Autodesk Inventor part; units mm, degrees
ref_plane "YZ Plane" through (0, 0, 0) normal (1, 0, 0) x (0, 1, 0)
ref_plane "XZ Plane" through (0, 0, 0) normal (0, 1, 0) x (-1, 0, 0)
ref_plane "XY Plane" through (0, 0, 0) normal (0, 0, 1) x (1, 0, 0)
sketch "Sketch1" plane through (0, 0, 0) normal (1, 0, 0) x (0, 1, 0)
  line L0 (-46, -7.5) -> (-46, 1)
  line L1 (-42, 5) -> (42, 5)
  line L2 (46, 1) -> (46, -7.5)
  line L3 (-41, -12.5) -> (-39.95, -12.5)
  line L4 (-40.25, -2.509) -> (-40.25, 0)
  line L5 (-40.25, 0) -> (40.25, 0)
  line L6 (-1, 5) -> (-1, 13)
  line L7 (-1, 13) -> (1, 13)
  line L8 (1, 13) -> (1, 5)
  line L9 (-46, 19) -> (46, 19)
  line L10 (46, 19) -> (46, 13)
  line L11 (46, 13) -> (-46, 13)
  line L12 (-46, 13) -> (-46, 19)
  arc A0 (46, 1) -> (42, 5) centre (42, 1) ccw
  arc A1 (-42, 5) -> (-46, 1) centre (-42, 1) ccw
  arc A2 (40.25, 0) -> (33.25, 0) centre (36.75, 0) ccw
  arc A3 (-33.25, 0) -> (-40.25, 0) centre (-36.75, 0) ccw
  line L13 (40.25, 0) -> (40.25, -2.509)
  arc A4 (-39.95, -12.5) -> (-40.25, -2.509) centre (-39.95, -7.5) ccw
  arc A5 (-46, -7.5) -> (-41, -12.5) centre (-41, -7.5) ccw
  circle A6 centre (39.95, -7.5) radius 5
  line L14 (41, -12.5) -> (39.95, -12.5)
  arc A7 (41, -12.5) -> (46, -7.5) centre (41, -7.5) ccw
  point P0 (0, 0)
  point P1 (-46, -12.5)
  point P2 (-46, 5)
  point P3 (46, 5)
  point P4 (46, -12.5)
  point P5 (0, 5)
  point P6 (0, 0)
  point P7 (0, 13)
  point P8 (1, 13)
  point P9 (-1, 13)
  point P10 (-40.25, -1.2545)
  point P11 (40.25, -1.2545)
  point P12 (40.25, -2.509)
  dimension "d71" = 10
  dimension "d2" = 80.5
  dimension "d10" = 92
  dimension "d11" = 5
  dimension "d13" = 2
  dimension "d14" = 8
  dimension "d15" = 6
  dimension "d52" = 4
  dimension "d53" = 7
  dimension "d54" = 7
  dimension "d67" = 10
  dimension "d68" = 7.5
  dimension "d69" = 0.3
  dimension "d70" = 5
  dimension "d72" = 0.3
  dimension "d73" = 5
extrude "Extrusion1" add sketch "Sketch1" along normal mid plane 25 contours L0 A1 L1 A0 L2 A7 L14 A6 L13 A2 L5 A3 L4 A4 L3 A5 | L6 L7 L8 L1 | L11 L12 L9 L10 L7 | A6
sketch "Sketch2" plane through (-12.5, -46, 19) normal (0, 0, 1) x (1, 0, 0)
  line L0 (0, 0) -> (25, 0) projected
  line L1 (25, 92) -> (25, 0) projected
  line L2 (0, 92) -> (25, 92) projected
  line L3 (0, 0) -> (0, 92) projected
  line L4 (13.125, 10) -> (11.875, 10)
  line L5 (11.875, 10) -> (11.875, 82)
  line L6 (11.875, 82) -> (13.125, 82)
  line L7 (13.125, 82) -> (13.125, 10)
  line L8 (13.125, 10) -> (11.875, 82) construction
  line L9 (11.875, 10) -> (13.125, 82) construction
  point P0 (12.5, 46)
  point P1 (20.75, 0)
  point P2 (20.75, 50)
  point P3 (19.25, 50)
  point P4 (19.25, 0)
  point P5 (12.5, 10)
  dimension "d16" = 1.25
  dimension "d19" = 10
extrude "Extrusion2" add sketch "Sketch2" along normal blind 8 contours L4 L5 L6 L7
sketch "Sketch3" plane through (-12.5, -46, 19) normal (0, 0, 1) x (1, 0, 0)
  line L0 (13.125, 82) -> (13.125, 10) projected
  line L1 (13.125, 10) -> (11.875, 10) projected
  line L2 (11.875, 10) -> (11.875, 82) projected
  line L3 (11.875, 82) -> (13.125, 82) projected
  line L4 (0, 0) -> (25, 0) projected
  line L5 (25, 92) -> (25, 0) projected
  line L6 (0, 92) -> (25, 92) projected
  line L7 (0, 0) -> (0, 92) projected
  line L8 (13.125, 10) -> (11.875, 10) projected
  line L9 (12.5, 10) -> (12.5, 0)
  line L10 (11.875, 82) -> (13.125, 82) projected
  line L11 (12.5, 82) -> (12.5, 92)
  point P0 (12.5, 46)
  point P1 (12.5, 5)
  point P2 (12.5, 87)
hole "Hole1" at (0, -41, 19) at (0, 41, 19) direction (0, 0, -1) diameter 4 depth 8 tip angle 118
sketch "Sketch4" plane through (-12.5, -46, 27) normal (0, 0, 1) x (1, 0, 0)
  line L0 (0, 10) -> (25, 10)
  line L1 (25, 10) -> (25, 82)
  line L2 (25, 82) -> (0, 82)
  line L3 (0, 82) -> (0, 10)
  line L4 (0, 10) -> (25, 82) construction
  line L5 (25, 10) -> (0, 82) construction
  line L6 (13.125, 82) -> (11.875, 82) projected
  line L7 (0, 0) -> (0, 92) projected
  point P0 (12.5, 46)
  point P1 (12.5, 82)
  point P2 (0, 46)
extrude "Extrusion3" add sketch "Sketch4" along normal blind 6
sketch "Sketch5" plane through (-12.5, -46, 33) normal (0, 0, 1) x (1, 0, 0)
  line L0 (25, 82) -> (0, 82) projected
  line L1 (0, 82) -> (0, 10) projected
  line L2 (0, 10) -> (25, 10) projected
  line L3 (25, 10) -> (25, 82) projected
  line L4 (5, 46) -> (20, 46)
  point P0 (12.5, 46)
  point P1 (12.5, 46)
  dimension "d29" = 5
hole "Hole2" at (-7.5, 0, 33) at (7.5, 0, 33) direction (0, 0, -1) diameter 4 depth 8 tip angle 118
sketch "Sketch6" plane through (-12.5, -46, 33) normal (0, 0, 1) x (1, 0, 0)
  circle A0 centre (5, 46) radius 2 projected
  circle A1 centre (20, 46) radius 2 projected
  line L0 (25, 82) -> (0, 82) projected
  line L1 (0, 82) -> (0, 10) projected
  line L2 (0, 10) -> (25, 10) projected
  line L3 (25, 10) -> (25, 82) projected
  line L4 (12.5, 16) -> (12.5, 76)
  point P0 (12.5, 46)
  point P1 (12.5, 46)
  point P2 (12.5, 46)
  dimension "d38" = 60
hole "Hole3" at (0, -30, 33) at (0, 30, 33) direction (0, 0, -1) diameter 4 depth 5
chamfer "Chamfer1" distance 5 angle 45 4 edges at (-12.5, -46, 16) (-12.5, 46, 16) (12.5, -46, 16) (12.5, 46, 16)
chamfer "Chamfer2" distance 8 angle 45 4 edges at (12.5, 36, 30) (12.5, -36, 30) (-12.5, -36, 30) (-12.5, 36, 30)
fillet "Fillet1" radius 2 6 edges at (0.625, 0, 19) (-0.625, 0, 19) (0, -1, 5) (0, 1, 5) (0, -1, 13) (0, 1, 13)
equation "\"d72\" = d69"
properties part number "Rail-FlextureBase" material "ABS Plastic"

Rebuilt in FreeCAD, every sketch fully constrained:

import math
import FreeCAD as App
import Part
import Sketcher


def edges_at(feature, points):
    """Names of the edges that pass closest to the given points."""
    edges = feature.Shape.Edges
    near = lambda p: min(range(len(edges)), key=lambda i: edges[i].distToShape(Part.Vertex(*p))[0])
    return sorted({f"Edge{near(p) + 1}" for p in points})


def add_polygon(sketch, points):
    """Adds a closed chain of lines whose ends are joined by coincident constraints."""
    first, n = sketch.GeometryCount, len(points)
    for a, b in zip(points, points[1:] + points[:1]):
        sketch.addGeometry(Part.LineSegment(App.Vector(*a, 0), App.Vector(*b, 0)), False)
    for i in range(n):
        sketch.addConstraint(Sketcher.Constraint("Coincident", first + i, 2, first + (i + 1) % n, 1))

doc = App.newDocument("Part")
params = doc.addObject("Spreadsheet::Sheet", "Params")
for row, (alias, value) in enumerate([
    ("sketch1_radius", "5 mm"),
    ("sketch1_radius2", "4 mm"),
    ("sketch1_radius3", "3.5 mm"),
    ("sketch1_width", "92 mm"),
    ("sketch1_height", "8 mm"),
    ("pad1_length", "25 mm"),
    ("sketch2_width", "1.25 mm"),
    ("sketch2_height", "72 mm"),
    ("pad2_length", "8 mm"),
    ("sketch3_diameter", "4 mm"),
    ("hole_diameter", "4 mm"),
    ("hole_depth", "8 mm"),
    ("sketch4_width", "25 mm"),
    ("sketch4_height", "72 mm"),
    ("pad3_length", "6 mm"),
    ("sketch5_diameter", "4 mm"),
    ("hole2_diameter", "4 mm"),
    ("hole2_depth", "8 mm"),
    ("sketch6_diameter", "4 mm"),
    ("hole3_diameter", "4 mm"),
    ("hole3_depth", "5 mm"),
    ("chamfer_size", "5 mm"),
    ("chamfer2_size", "8 mm"),
    ("fillet_radius", "2 mm"),
], start=1):
    params.set(f"A{row}", alias)
    params.set(f"B{row}", "=" + value)
    params.setAlias(f"B{row}", alias)

body = doc.addObject("PartDesign::Body", "Body")

# Sketch on YZ plane
sketch1 = body.newObject("Sketcher::SketchObject", "Sketch")
sketch1.AttachmentSupport = (doc.getObject("YZ_Plane"), [""])
sketch1.MapMode = "FlatFace"
sketch1.addGeometry([
    Part.LineSegment(App.Vector(-46, 1, 0), App.Vector(-46, -7.5, 0)),  # 0
    Part.ArcOfCircle(Part.Circle(App.Vector(-41, -7.5, 0), App.Vector(0, 0, 1), 5), math.radians(180), math.radians(270)),  # 1
    Part.LineSegment(App.Vector(-41, -12.5, 0), App.Vector(-40, -12.5, 0)),  # 2
    Part.ArcOfCircle(Part.Circle(App.Vector(-40, -7.5, 0), App.Vector(0, 0, 1), 5), math.radians(-90), math.radians(93)),  # 3
    Part.LineSegment(App.Vector(-40.2, -2.5, 0), App.Vector(-40.2, 0, 0)),  # 4
    Part.ArcOfCircle(Part.Circle(App.Vector(-36.8, 0, 0), App.Vector(0, 0, 1), 3.5), math.radians(0), math.radians(180)),  # 5
    Part.LineSegment(App.Vector(-33.2, 0, 0), App.Vector(33.2, 0, 0)),  # 6
    Part.ArcOfCircle(Part.Circle(App.Vector(36.8, 0, 0), App.Vector(0, 0, 1), 3.5), math.radians(0), math.radians(180)),  # 7
    Part.LineSegment(App.Vector(40.2, 0, 0), App.Vector(40.2, -2.5, 0)),  # 8
    Part.ArcOfCircle(Part.Circle(App.Vector(40, -7.5, 0), App.Vector(0, 0, 1), 5), math.radians(87), math.radians(270)),  # 9
    Part.LineSegment(App.Vector(40, -12.5, 0), App.Vector(41, -12.5, 0)),  # 10
    Part.ArcOfCircle(Part.Circle(App.Vector(41, -7.5, 0), App.Vector(0, 0, 1), 5), math.radians(-90), math.radians(0)),  # 11
    Part.LineSegment(App.Vector(46, -7.5, 0), App.Vector(46, 1, 0)),  # 12
    Part.ArcOfCircle(Part.Circle(App.Vector(42, 1, 0), App.Vector(0, 0, 1), 4), math.radians(0), math.radians(90)),  # 13
    Part.LineSegment(App.Vector(42, 5, 0), App.Vector(1, 5, 0)),  # 14
    Part.LineSegment(App.Vector(1, 5, 0), App.Vector(1, 13, 0)),  # 15
    Part.LineSegment(App.Vector(1, 13, 0), App.Vector(46, 13, 0)),  # 16
    Part.LineSegment(App.Vector(46, 13, 0), App.Vector(46, 19, 0)),  # 17
    Part.LineSegment(App.Vector(46, 19, 0), App.Vector(-46, 19, 0)),  # 18
    Part.LineSegment(App.Vector(-46, 19, 0), App.Vector(-46, 13, 0)),  # 19
    Part.LineSegment(App.Vector(-46, 13, 0), App.Vector(-1, 13, 0)),  # 20
    Part.LineSegment(App.Vector(-1, 13, 0), App.Vector(-1, 5, 0)),  # 21
    Part.LineSegment(App.Vector(-1, 5, 0), App.Vector(-42, 5, 0)),  # 22
    Part.ArcOfCircle(Part.Circle(App.Vector(-42, 1, 0), App.Vector(0, 0, 1), 4), math.radians(90), math.radians(180)),  # 23
], False)
sketch1.addConstraint([
    Sketcher.Constraint("Tangent", 0, 2, 1, 1),
    Sketcher.Constraint("Tangent", 1, 2, 2, 1),
    Sketcher.Constraint("Tangent", 2, 2, 3, 1),
    Sketcher.Constraint("Coincident", 3, 2, 4, 1),
    Sketcher.Constraint("Tangent", 4, 2, 5, 2),
    Sketcher.Constraint("Coincident", 5, 1, 6, 1),
    Sketcher.Constraint("Coincident", 6, 2, 7, 2),
    Sketcher.Constraint("Tangent", 7, 1, 8, 1),
    Sketcher.Constraint("Coincident", 8, 2, 9, 1),
    Sketcher.Constraint("Tangent", 9, 2, 10, 1),
    Sketcher.Constraint("Tangent", 10, 2, 11, 1),
    Sketcher.Constraint("Tangent", 11, 2, 12, 1),
    Sketcher.Constraint("Tangent", 12, 2, 13, 1),
    Sketcher.Constraint("Tangent", 13, 2, 14, 1),
    Sketcher.Constraint("Coincident", 14, 2, 15, 1),
    Sketcher.Constraint("Coincident", 15, 2, 16, 1),
    Sketcher.Constraint("Coincident", 16, 2, 17, 1),
    Sketcher.Constraint("Coincident", 17, 2, 18, 1),
    Sketcher.Constraint("Coincident", 18, 2, 19, 1),
    Sketcher.Constraint("Coincident", 19, 2, 20, 1),
    Sketcher.Constraint("Coincident", 20, 2, 21, 1),
    Sketcher.Constraint("Coincident", 21, 2, 22, 1),
    Sketcher.Constraint("Tangent", 22, 2, 23, 1),
    Sketcher.Constraint("Tangent", 23, 2, 0, 1),
    Sketcher.Constraint("Vertical", 0),
    Sketcher.Constraint("Horizontal", 2),
    Sketcher.Constraint("Vertical", 4),
    Sketcher.Constraint("Horizontal", 6),
    Sketcher.Constraint("Vertical", 8),
    Sketcher.Constraint("Horizontal", 10),
    Sketcher.Constraint("Vertical", 12),
    Sketcher.Constraint("Horizontal", 14),
    Sketcher.Constraint("Vertical", 15),
    Sketcher.Constraint("Horizontal", 16),
    Sketcher.Constraint("Vertical", 17),
    Sketcher.Constraint("Horizontal", 18),
    Sketcher.Constraint("Vertical", 19),
    Sketcher.Constraint("Horizontal", 20),
    Sketcher.Constraint("Vertical", 21),
    Sketcher.Constraint("Horizontal", 22),
    Sketcher.Constraint("Equal", 1, 3),
    Sketcher.Constraint("Equal", 5, 7),
    Sketcher.Constraint("Equal", 3, 9),
    Sketcher.Constraint("Equal", 9, 11),
    Sketcher.Constraint("Equal", 13, 23),
    Sketcher.Constraint("Symmetric", 5, 3, 7, 3, -1, 1),
    Sketcher.Constraint("Symmetric", 3, 3, 9, 3, -2),
    Sketcher.Constraint("Symmetric", 13, 3, 23, 3, -2),
    Sketcher.Constraint("Symmetric", 16, 2, 19, 2, -2),
    Sketcher.Constraint("PointOnObject", 5, 3, -1),
    Sketcher.Constraint("PointOnObject", 5, 1, -1),
    Sketcher.Constraint("Vertical", 12, 2, 16, 2),
    Sketcher.Constraint("Equal", 16, 20),
    Sketcher.Constraint("Radius", 1, 5.0),
    Sketcher.Constraint("Radius", 13, 4.0),
    Sketcher.Constraint("Radius", 5, 3.5),
    Sketcher.Constraint("DistanceX", 18, 2, 18, 1, 92.0),
    Sketcher.Constraint("DistanceY", 15, 1, 15, 2, 8.0),
    Sketcher.Constraint("DistanceY", 17, 1, 17, 2, 6.0),
    Sketcher.Constraint("DistanceY", -1, 1, 13, 2, 5.0),
    Sketcher.Constraint("DistanceX", 20, 2, 15, 2, 2.0),
    Sketcher.Constraint("DistanceY", 1, 3, -1, 1, 7.5),
    Sketcher.Constraint("DistanceX", 3, 2, 3, 3, 0.3),
    Sketcher.Constraint("DistanceX", 6, 1, 6, 2, 66.5),
])
sketch1.setExpression("Constraints[53]", "Params.sketch1_radius")
sketch1.setExpression("Constraints[54]", "Params.sketch1_radius2")
sketch1.setExpression("Constraints[55]", "Params.sketch1_radius3")
sketch1.setExpression("Constraints[56]", "Params.sketch1_width")
sketch1.setExpression("Constraints[57]", "Params.sketch1_height")
pad1 = body.newObject("PartDesign::Pad", "Pad")
pad1.Profile = sketch1
pad1.setExpression("Length", "Params.pad1_length")
pad1.Midplane = True

# Sketch on XY plane
sketch2 = body.newObject("Sketcher::SketchObject", "Sketch001")
sketch2.AttachmentSupport = (doc.getObject("XY_Plane"), [""])
sketch2.MapMode = "FlatFace"
sketch2.AttachmentOffset = App.Placement(App.Vector(0, 0, 19), App.Rotation())
add_polygon(sketch2, [(-0.6, -36), (0.6, -36), (0.6, 36), (-0.6, 36)])  # lines 0-3
sketch2.addConstraint([
    Sketcher.Constraint("Horizontal", 0),
    Sketcher.Constraint("Vertical", 1),
    Sketcher.Constraint("Horizontal", 2),
    Sketcher.Constraint("Vertical", 3),
    Sketcher.Constraint("Symmetric", 0, 2, 2, 2, -1, 1),
    Sketcher.Constraint("DistanceX", 0, 1, 0, 2, 1.25),
    Sketcher.Constraint("DistanceY", 1, 1, 1, 2, 72.0),
])
sketch2.setExpression("Constraints[9]", "Params.sketch2_width")
sketch2.setExpression("Constraints[10]", "Params.sketch2_height")
pad2 = body.newObject("PartDesign::Pad", "Pad001")
pad2.Profile = sketch2
pad2.setExpression("Length", "Params.pad2_length")

# Sketch on XY plane
sketch3 = body.newObject("Sketcher::SketchObject", "Sketch002")
sketch3.AttachmentSupport = (doc.getObject("XY_Plane"), [""])
sketch3.MapMode = "FlatFace"
sketch3.AttachmentOffset = App.Placement(App.Vector(0, 0, 19), App.Rotation())
sketch3.addGeometry([
    Part.Circle(App.Vector(0, -41, 0), App.Vector(0, 0, 1), 2),
    Part.Circle(App.Vector(0, 41, 0), App.Vector(0, 0, 1), 2),
], False)
sketch3.addConstraint([
    Sketcher.Constraint("Equal", 0, 1),
    Sketcher.Constraint("Symmetric", 0, 3, 1, 3, -1, 1),
    Sketcher.Constraint("PointOnObject", 0, 3, -2),
    Sketcher.Constraint("Diameter", 0, 4.0),
    Sketcher.Constraint("DistanceY", 0, 3, -1, 1, 41.0),
])
sketch3.setExpression("Constraints[3]", "Params.sketch3_diameter")
doc.recompute()
hole = body.newObject("PartDesign::Hole", "Hole")
hole.Profile = sketch3
hole.ThreadType = "None"
hole.setExpression("Diameter", "Params.hole_diameter")
hole.DepthType = "Dimension"
hole.setExpression("Depth", "Params.hole_depth")
hole.DrillPoint = "Angled"
hole.DrillPointAngle = 118

# Sketch on XY plane
sketch4 = body.newObject("Sketcher::SketchObject", "Sketch003")
sketch4.AttachmentSupport = (doc.getObject("XY_Plane"), [""])
sketch4.MapMode = "FlatFace"
sketch4.AttachmentOffset = App.Placement(App.Vector(0, 0, 27), App.Rotation())
add_polygon(sketch4, [(-12, 36), (-12, -36), (12, -36), (12, 36)])  # lines 0-3
sketch4.addConstraint([
    Sketcher.Constraint("Vertical", 0),
    Sketcher.Constraint("Horizontal", 1),
    Sketcher.Constraint("Vertical", 2),
    Sketcher.Constraint("Horizontal", 3),
    Sketcher.Constraint("Symmetric", 0, 2, 2, 2, -1, 1),
    Sketcher.Constraint("DistanceX", 1, 1, 1, 2, 25.0),
    Sketcher.Constraint("DistanceY", 0, 2, 0, 1, 72.0),
])
sketch4.setExpression("Constraints[9]", "Params.sketch4_width")
sketch4.setExpression("Constraints[10]", "Params.sketch4_height")
pad3 = body.newObject("PartDesign::Pad", "Pad002")
pad3.Profile = sketch4
pad3.setExpression("Length", "Params.pad3_length")

# Sketch on XY plane
sketch5 = body.newObject("Sketcher::SketchObject", "Sketch004")
sketch5.AttachmentSupport = (doc.getObject("XY_Plane"), [""])
sketch5.MapMode = "FlatFace"
sketch5.AttachmentOffset = App.Placement(App.Vector(0, 0, 33), App.Rotation())
sketch5.addGeometry([
    Part.Circle(App.Vector(-7.5, 0, 0), App.Vector(0, 0, 1), 2),
    Part.Circle(App.Vector(7.5, 0, 0), App.Vector(0, 0, 1), 2),
], False)
sketch5.addConstraint([
    Sketcher.Constraint("Equal", 0, 1),
    Sketcher.Constraint("Symmetric", 0, 3, 1, 3, -1, 1),
    Sketcher.Constraint("PointOnObject", 0, 3, -1),
    Sketcher.Constraint("Diameter", 0, 4.0),
    Sketcher.Constraint("DistanceX", 0, 3, 1, 3, 15.0),
])
sketch5.setExpression("Constraints[3]", "Params.sketch5_diameter")
doc.recompute()
hole2 = body.newObject("PartDesign::Hole", "Hole001")
hole2.Profile = sketch5
hole2.ThreadType = "None"
hole2.setExpression("Diameter", "Params.hole2_diameter")
hole2.DepthType = "Dimension"
hole2.setExpression("Depth", "Params.hole2_depth")
hole2.DrillPoint = "Angled"
hole2.DrillPointAngle = 118

# Sketch on XY plane
sketch6 = body.newObject("Sketcher::SketchObject", "Sketch005")
sketch6.AttachmentSupport = (doc.getObject("XY_Plane"), [""])
sketch6.MapMode = "FlatFace"
sketch6.AttachmentOffset = App.Placement(App.Vector(0, 0, 33), App.Rotation())
sketch6.addGeometry([
    Part.Circle(App.Vector(0, -30, 0), App.Vector(0, 0, 1), 2),
    Part.Circle(App.Vector(0, 30, 0), App.Vector(0, 0, 1), 2),
], False)
sketch6.addConstraint([
    Sketcher.Constraint("Equal", 0, 1),
    Sketcher.Constraint("Symmetric", 0, 3, 1, 3, -1, 1),
    Sketcher.Constraint("PointOnObject", 0, 3, -2),
    Sketcher.Constraint("Diameter", 0, 4.0),
    Sketcher.Constraint("DistanceY", 0, 3, -1, 1, 30.0),
])
sketch6.setExpression("Constraints[3]", "Params.sketch6_diameter")
doc.recompute()
hole3 = body.newObject("PartDesign::Hole", "Hole002")
hole3.Profile = sketch6
hole3.ThreadType = "None"
hole3.setExpression("Diameter", "Params.hole3_diameter")
hole3.DepthType = "Dimension"
hole3.setExpression("Depth", "Params.hole3_depth")
hole3.DrillPoint = "Flat"
doc.recompute()

chamfer = body.newObject("PartDesign::Chamfer", "Chamfer")
chamfer.Base = (hole3, edges_at(hole3, [
    (-12.5, -46, 16),
    (-12.5, 46, 16),
    (12.5, -46, 16),
    (12.5, 46, 16),
]))
chamfer.setExpression("Size", "Params.chamfer_size")
doc.recompute()

chamfer2 = body.newObject("PartDesign::Chamfer", "Chamfer001")
chamfer2.Base = (chamfer, edges_at(chamfer, [
    (12.5, 36, 30),
    (12.5, -36, 30),
    (-12.5, -36, 30),
    (-12.5, 36, 30),
]))
chamfer2.setExpression("Size", "Params.chamfer2_size")
doc.recompute()

fillet = body.newObject("PartDesign::Fillet", "Fillet")
fillet.Base = (chamfer2, edges_at(chamfer2, [
    (0.625, 0, 19),
    (-0.625, 0, 19),
    (0, -1, 5),
    (0, 1, 5),
    (0, -1, 13),
    (0, 1, 13),
]))
fillet.setExpression("Radius", "Params.fillet_radius")

doc.recompute()
